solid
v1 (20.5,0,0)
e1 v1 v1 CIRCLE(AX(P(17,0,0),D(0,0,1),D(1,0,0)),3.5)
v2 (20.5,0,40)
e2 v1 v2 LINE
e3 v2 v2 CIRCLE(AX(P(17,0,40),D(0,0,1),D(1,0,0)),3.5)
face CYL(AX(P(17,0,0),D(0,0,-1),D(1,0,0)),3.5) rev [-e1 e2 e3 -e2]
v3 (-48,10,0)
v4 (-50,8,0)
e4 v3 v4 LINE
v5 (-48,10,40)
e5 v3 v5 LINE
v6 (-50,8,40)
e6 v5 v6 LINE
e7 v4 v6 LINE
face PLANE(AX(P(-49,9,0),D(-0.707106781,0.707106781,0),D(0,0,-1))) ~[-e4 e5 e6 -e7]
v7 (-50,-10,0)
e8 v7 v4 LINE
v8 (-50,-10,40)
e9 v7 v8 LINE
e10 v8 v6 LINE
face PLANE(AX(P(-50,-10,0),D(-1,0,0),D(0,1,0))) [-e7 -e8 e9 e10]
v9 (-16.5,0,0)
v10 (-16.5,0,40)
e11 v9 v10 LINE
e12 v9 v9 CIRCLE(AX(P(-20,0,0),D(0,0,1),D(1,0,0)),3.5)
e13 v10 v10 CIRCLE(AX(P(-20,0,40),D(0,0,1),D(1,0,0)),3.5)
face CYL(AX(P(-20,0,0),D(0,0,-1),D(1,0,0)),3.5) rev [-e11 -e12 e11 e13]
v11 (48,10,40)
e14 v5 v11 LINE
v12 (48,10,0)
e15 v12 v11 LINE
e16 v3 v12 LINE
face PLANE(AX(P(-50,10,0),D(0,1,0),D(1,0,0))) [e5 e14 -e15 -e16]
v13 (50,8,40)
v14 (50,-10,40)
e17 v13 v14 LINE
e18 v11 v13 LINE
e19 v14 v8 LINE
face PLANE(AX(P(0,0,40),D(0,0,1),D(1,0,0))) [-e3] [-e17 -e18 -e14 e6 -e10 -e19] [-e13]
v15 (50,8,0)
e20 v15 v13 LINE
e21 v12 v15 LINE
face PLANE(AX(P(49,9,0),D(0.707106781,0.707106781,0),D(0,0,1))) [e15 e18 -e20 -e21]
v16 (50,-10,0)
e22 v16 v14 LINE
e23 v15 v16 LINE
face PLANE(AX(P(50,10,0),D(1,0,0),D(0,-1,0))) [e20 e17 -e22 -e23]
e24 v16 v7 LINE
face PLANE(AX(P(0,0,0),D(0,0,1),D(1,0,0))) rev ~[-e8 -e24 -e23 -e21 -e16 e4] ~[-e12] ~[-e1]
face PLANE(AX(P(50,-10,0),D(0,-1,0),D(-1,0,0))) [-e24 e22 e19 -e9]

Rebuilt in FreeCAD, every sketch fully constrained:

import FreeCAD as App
import Part
import Sketcher
from FreeCAD import Vector
Q = App.Units.Quantity


def edges_at(feature, points):
    """Names of the edges that pass closest to the given points."""
    edges = feature.Shape.Edges
    near = lambda p: min(range(len(edges)), key=lambda i: edges[i].distToShape(Part.Vertex(*p))[0])
    return sorted({f"Edge{near(p) + 1}" for p in points})

doc = App.newDocument("Part")
body = doc.addObject("PartDesign::Body", "Body")

# Sketch on XY plane
sketch1 = body.newObject("Sketcher::SketchObject", "Sketch")
sketch1.AttachmentSupport = (doc.getObject("XY_Plane"), [""])
sketch1.MapMode = "FlatFace"
sketch1.addGeometry(Part.LineSegment(Vector(50, 10, 0), Vector(-50, 10, 0)), False)
sketch1.addGeometry(Part.LineSegment(Vector(-50, 10, 0), Vector(-50, -10, 0)), False)
sketch1.addGeometry(Part.LineSegment(Vector(-50, -10, 0), Vector(50, -10, 0)), False)
sketch1.addGeometry(Part.LineSegment(Vector(50, -10, 0), Vector(50, 10, 0)), False)
sketch1.addGeometry(Part.Circle(Vector(-20, 0, 0), Vector(0, 0, 1), 3.5), False)
sketch1.addGeometry(Part.Circle(Vector(17, 0, 0), Vector(0, 0, 1), 3.5), False)
sketch1.addConstraint(Sketcher.Constraint("Coincident", 0, 2, 1, 1))
sketch1.addConstraint(Sketcher.Constraint("Coincident", 1, 2, 2, 1))
sketch1.addConstraint(Sketcher.Constraint("Coincident", 2, 2, 3, 1))
sketch1.addConstraint(Sketcher.Constraint("Coincident", 3, 2, 0, 1))
sketch1.addConstraint(Sketcher.Constraint("Horizontal", 0))
sketch1.addConstraint(Sketcher.Constraint("Vertical", 1))
sketch1.addConstraint(Sketcher.Constraint("Horizontal", 2))
sketch1.addConstraint(Sketcher.Constraint("Vertical", 3))
sketch1.addConstraint(Sketcher.Constraint("Equal", 4, 5))
sketch1.addConstraint(Sketcher.Constraint("Symmetric", 0, 2, 2, 2, -1, 1))
sketch1.addConstraint(Sketcher.Constraint("PointOnObject", 4, 3, -1))
sketch1.addConstraint(Sketcher.Constraint("PointOnObject", 5, 3, -1))
sketch1.addConstraint(Sketcher.Constraint("Diameter", 4, Q("7 mm")))
sketch1.addConstraint(Sketcher.Constraint("DistanceX", 0, 2, 0, 1, Q("100 mm")))
sketch1.addConstraint(Sketcher.Constraint("DistanceY", 1, 2, 1, 1, Q("20 mm")))
sketch1.addConstraint(Sketcher.Constraint("DistanceX", 4, 3, -1, 1, Q("20 mm")))
sketch1.addConstraint(Sketcher.Constraint("DistanceX", 5, 3, 2, 2, Q("33 mm")))
pad1 = body.newObject("PartDesign::Pad", "Pad")
pad1.Profile = sketch1
pad1.Length = 40
doc.recompute()

chamfer = body.newObject("PartDesign::Chamfer", "Chamfer")
chamfer.Base = (pad1, edges_at(pad1, [(-50, 10, 20), (50, 10, 20)]))
chamfer.Size = 2

doc.recompute()
